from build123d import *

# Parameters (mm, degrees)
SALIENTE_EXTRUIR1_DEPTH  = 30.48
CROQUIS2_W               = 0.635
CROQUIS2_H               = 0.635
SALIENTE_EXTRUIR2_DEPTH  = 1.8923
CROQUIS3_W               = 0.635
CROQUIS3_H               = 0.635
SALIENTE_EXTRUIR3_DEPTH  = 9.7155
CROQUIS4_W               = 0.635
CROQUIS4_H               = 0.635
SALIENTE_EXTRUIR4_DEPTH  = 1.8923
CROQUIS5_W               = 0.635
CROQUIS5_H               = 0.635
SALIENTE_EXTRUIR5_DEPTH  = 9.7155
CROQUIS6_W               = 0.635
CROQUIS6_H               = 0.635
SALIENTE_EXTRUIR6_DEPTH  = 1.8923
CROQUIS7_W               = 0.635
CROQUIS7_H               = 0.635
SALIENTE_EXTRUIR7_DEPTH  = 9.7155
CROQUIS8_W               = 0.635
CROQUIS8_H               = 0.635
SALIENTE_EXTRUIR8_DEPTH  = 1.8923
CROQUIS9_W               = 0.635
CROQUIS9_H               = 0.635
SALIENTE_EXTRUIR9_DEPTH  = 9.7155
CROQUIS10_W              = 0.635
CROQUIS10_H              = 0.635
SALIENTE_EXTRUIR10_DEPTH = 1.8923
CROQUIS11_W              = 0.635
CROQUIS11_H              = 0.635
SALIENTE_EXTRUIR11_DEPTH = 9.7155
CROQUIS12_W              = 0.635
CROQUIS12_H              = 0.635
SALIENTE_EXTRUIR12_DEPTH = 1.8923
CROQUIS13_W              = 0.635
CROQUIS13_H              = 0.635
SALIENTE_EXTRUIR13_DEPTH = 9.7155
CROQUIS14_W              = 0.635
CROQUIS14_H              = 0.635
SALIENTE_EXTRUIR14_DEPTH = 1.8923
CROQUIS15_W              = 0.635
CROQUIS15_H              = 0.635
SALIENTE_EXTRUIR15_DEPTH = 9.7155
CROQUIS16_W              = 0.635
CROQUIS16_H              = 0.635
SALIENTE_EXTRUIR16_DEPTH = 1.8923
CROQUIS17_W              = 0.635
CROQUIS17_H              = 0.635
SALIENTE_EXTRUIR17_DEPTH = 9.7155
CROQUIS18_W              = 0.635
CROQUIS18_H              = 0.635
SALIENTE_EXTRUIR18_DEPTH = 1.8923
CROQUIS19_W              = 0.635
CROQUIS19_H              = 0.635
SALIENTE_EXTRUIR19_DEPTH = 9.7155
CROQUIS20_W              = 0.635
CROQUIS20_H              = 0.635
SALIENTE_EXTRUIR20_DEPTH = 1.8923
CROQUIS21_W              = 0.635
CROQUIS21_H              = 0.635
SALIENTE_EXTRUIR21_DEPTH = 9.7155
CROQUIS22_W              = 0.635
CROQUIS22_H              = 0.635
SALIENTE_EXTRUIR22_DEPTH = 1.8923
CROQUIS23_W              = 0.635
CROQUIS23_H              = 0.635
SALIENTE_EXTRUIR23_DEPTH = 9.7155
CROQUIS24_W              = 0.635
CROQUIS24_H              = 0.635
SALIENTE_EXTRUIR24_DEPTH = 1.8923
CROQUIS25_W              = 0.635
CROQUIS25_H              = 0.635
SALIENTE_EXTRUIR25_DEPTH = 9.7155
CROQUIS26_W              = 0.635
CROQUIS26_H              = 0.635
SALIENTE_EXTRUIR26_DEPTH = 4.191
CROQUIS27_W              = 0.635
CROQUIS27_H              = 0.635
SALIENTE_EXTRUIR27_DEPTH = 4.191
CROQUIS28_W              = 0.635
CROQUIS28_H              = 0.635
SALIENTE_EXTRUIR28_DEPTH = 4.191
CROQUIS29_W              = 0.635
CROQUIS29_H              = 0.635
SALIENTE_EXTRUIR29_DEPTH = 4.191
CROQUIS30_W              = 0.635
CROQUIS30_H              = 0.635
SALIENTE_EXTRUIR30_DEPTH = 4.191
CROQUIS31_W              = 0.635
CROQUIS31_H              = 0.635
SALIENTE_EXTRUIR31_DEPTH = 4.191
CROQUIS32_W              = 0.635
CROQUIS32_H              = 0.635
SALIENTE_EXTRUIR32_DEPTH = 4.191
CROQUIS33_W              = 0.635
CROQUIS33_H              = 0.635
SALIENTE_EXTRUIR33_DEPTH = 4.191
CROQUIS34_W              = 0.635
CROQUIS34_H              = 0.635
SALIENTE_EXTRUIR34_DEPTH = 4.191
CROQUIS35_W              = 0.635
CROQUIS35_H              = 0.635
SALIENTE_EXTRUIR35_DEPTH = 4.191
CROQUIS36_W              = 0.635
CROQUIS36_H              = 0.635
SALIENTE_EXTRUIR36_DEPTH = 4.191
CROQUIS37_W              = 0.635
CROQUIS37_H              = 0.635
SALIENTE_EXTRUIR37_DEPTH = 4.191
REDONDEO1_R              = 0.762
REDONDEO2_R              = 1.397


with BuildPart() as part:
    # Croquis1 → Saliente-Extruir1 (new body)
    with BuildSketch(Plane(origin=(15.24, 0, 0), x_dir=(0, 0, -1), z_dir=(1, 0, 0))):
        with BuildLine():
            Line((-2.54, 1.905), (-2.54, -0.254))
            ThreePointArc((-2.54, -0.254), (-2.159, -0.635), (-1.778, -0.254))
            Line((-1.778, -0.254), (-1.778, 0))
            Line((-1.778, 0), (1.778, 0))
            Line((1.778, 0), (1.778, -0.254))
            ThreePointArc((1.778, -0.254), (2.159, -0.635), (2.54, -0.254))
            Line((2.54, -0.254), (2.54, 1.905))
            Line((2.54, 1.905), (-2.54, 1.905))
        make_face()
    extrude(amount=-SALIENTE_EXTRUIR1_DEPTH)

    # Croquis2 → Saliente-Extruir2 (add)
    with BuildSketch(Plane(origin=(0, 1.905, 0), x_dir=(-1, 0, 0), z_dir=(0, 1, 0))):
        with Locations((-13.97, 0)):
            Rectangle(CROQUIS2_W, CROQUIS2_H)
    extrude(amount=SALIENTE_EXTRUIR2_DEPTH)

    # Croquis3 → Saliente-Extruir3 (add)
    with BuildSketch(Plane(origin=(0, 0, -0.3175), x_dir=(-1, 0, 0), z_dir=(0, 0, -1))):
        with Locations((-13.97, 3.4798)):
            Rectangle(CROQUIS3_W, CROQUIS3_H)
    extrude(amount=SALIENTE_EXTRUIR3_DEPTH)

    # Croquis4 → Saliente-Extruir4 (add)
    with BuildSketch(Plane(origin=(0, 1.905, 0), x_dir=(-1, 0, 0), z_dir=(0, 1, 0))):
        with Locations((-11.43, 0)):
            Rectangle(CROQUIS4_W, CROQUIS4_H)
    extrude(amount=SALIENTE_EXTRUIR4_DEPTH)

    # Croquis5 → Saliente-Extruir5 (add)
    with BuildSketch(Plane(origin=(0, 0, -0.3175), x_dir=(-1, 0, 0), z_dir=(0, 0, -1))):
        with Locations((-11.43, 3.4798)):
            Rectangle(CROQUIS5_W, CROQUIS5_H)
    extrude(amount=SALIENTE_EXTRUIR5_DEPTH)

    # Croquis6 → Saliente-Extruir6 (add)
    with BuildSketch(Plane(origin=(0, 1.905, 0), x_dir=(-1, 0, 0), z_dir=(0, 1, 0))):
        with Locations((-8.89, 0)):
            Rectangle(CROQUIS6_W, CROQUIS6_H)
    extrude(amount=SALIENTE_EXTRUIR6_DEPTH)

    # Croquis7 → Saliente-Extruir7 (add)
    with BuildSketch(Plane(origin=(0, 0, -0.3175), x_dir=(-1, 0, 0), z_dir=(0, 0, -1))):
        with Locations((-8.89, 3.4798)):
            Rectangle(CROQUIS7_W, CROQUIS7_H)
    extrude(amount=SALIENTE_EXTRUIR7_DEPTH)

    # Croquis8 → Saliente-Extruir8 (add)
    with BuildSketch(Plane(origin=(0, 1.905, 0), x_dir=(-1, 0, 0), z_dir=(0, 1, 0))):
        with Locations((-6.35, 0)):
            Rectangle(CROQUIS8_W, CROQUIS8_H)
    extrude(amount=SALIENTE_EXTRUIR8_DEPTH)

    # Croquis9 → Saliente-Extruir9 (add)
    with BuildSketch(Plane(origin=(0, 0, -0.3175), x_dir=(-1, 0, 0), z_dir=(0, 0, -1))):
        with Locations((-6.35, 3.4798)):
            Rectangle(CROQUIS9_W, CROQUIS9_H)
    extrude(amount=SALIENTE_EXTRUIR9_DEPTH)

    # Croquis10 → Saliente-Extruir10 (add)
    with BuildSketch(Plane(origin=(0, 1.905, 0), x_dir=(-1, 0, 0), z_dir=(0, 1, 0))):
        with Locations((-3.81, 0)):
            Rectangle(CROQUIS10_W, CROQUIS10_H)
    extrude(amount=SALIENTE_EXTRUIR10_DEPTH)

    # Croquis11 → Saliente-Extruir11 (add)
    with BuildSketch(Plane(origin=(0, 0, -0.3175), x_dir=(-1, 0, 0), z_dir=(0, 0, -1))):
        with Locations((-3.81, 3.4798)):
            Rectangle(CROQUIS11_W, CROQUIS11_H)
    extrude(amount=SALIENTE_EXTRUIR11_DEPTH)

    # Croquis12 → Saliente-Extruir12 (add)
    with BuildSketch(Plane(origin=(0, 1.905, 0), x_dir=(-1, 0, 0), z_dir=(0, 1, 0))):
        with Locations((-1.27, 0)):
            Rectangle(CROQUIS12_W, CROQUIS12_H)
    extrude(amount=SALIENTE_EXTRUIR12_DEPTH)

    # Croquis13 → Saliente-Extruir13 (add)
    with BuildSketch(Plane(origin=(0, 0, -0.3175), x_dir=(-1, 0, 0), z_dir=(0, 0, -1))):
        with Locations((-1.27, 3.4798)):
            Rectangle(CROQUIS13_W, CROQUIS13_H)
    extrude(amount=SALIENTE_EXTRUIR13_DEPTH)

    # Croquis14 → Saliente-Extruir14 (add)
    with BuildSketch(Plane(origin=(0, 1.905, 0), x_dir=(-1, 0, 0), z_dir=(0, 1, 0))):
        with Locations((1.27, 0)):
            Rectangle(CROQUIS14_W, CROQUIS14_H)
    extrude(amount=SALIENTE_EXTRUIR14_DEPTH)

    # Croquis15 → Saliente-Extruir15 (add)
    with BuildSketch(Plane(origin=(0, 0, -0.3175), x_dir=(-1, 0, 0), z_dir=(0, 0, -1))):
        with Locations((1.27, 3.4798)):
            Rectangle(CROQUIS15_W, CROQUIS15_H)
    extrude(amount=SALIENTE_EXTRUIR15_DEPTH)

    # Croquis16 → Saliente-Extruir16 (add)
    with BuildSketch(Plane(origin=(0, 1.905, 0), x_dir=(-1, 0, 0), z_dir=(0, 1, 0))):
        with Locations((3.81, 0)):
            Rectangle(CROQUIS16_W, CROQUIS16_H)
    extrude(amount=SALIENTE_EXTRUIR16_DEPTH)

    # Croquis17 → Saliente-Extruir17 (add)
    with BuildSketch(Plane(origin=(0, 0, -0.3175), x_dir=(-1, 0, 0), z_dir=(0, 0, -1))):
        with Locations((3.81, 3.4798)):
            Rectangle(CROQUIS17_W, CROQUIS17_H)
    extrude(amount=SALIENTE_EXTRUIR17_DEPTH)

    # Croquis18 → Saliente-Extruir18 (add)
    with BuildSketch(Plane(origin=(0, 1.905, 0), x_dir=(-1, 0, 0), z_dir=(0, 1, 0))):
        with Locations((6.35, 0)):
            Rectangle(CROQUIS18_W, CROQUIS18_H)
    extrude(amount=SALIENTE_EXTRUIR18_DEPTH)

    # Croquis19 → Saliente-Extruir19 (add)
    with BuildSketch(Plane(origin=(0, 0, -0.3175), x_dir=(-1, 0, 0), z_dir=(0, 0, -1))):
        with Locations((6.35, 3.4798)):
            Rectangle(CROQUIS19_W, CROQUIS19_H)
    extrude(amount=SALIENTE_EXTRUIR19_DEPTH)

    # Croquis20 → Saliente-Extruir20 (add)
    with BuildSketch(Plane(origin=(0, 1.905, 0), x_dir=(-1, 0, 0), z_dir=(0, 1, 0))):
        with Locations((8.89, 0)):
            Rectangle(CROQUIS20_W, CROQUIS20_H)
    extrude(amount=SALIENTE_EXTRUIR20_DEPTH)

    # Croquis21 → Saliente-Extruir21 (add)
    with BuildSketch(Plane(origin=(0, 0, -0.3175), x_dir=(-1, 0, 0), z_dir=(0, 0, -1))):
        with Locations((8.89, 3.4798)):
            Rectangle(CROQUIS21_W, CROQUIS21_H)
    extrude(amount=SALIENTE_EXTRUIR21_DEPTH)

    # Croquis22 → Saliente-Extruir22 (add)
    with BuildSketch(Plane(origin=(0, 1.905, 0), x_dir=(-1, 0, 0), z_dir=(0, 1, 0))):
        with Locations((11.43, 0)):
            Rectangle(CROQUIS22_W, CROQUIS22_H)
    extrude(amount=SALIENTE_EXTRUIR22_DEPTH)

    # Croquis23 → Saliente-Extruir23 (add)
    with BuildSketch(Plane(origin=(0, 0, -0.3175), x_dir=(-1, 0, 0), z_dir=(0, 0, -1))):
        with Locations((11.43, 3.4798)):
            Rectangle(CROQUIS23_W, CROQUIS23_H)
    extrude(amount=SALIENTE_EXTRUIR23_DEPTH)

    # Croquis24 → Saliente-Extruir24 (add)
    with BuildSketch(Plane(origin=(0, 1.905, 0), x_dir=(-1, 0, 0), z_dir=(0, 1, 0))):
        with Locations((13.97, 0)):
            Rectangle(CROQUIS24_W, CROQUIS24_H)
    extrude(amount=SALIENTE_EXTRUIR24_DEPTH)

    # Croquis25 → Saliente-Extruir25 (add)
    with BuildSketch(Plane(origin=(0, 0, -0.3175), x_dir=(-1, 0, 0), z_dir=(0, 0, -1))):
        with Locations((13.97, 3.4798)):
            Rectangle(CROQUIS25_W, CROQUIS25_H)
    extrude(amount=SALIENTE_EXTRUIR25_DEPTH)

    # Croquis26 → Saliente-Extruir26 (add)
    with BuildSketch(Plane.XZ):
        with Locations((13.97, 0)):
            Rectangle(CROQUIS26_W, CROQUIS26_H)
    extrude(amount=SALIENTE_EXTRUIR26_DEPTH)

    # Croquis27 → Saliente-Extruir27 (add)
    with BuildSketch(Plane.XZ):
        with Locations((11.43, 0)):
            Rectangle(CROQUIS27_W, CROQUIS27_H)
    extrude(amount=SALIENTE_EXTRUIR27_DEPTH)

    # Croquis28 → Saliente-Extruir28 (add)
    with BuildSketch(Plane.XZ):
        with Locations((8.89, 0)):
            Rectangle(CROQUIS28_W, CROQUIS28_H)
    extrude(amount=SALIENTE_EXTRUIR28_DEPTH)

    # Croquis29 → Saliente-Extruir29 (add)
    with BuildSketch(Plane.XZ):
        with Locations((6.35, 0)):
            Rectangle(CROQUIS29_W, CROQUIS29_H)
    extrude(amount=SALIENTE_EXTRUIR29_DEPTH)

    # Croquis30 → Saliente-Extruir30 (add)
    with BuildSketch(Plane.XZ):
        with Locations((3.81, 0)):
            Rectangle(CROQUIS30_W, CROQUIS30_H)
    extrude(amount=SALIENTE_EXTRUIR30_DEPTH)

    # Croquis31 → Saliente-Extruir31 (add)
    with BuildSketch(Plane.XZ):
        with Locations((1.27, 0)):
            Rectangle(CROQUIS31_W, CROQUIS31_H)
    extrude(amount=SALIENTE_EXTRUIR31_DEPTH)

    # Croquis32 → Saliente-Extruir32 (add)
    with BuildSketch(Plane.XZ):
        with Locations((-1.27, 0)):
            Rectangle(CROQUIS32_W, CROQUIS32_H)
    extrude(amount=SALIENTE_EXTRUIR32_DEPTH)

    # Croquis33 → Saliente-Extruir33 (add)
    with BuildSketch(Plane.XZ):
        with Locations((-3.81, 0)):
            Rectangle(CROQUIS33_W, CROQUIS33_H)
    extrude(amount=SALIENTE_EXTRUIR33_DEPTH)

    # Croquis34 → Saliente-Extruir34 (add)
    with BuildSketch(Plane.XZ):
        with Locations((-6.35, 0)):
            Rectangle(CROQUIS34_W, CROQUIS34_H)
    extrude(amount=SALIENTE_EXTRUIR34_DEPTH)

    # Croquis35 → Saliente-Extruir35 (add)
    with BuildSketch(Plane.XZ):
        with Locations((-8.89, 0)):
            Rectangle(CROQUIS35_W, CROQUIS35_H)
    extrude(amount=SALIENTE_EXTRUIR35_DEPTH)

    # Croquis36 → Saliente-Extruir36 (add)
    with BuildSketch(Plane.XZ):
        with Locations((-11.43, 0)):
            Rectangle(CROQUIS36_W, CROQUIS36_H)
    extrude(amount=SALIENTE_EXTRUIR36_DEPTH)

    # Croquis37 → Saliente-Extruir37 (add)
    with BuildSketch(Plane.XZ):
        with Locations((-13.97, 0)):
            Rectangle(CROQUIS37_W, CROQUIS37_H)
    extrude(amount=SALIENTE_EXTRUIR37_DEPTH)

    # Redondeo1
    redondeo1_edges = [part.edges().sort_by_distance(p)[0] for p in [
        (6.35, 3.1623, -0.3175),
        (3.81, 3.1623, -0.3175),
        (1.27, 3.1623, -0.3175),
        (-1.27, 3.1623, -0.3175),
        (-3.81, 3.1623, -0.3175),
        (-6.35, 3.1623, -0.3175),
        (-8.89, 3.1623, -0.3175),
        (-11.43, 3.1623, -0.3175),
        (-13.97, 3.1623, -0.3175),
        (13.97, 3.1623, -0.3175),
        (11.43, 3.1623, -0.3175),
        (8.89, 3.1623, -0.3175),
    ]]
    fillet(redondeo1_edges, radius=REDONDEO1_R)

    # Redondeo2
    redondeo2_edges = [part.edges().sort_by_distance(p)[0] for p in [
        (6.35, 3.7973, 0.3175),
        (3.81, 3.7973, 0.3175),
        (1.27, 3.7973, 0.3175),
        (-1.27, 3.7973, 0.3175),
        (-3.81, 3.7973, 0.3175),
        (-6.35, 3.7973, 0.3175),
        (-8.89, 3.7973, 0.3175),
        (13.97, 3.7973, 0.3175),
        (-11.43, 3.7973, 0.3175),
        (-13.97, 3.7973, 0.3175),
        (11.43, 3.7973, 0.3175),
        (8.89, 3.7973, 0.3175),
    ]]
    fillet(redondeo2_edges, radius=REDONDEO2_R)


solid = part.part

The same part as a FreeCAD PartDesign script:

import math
import FreeCAD as App
import Part
import Sketcher
Q = App.Units.Quantity


def edges_at(feature, points):
    """Names of the edges that pass closest to the given points."""
    edges = feature.Shape.Edges
    near = lambda p: min(range(len(edges)), key=lambda i: edges[i].distToShape(Part.Vertex(*p))[0])
    return sorted({f"Edge{near(p) + 1}" for p in points})


def add_polygon(sketch, points):
    """Adds a closed chain of lines whose ends are joined by coincident constraints."""
    first, n = sketch.GeometryCount, len(points)
    for a, b in zip(points, points[1:] + points[:1]):
        sketch.addGeometry(Part.LineSegment(App.Vector(*a, 0), App.Vector(*b, 0)), False)
    for i in range(n):
        sketch.addConstraint(Sketcher.Constraint("Coincident", first + i, 2, first + (i + 1) % n, 1))

doc = App.newDocument("Part")
body = doc.addObject("PartDesign::Body", "Body")

sketch1 = body.newObject("Sketcher::SketchObject", "Sketch")
sketch1.AttachmentSupport = (doc.getObject("YZ_Plane"), [""])
sketch1.MapMode = "FlatFace"
sketch1.AttachmentOffset = App.Placement(App.Vector(0, 0, 0.6 * 25.4), App.Rotation())
sketch1.addGeometry(Part.LineSegment(App.Vector(1.91, 2.54, 0), App.Vector(-0.25, 2.54, 0)), False)
sketch1.addGeometry(Part.ArcOfCircle(Part.Circle(App.Vector(-0.25, 2.16, 0), App.Vector(0, 0, 1), 0.38), math.radians(90), math.radians(270)), False)
sketch1.addGeometry(Part.LineSegment(App.Vector(-0.25, 1.78, 0), App.Vector(0, 1.78, 0)), False)
sketch1.addGeometry(Part.LineSegment(App.Vector(0, 1.78, 0), App.Vector(0, -1.78, 0)), False)
sketch1.addGeometry(Part.LineSegment(App.Vector(0, -1.78, 0), App.Vector(-0.25, -1.78, 0)), False)
sketch1.addGeometry(Part.ArcOfCircle(Part.Circle(App.Vector(-0.25, -2.16, 0), App.Vector(0, 0, 1), 0.38), math.radians(90), math.radians(270)), False)
sketch1.addGeometry(Part.LineSegment(App.Vector(-0.25, -2.54, 0), App.Vector(1.91, -2.54, 0)), False)
sketch1.addGeometry(Part.LineSegment(App.Vector(1.91, -2.54, 0), App.Vector(1.91, 2.54, 0)), False)
sketch1.addConstraint(Sketcher.Constraint("Tangent", 0, 2, 1, 1))
sketch1.addConstraint(Sketcher.Constraint("Tangent", 1, 2, 2, 1))
sketch1.addConstraint(Sketcher.Constraint("Coincident", 2, 2, 3, 1))
sketch1.addConstraint(Sketcher.Constraint("Coincident", 3, 2, 4, 1))
sketch1.addConstraint(Sketcher.Constraint("Tangent", 4, 2, 5, 1))
sketch1.addConstraint(Sketcher.Constraint("Tangent", 5, 2, 6, 1))
sketch1.addConstraint(Sketcher.Constraint("Coincident", 6, 2, 7, 1))
sketch1.addConstraint(Sketcher.Constraint("Coincident", 7, 2, 0, 1))
sketch1.addConstraint(Sketcher.Constraint("Horizontal", 0))
sketch1.addConstraint(Sketcher.Constraint("Horizontal", 2))
sketch1.addConstraint(Sketcher.Constraint("Vertical", 3))
sketch1.addConstraint(Sketcher.Constraint("Horizontal", 4))
sketch1.addConstraint(Sketcher.Constraint("Horizontal", 6))
sketch1.addConstraint(Sketcher.Constraint("Vertical", 7))
sketch1.addConstraint(Sketcher.Constraint("Equal", 1, 5))
sketch1.addConstraint(Sketcher.Constraint("Symmetric", 2, 2, 3, 2, -1, 1))
sketch1.addConstraint(Sketcher.Constraint("Vertical", 1, 3, 5, 3))
sketch1.addConstraint(Sketcher.Constraint("DistanceY", 7, 1, 7, 2, Q("0.2 in")))
sketch1.addConstraint(Sketcher.Constraint("Radius", 1, Q("0.015 in")))
sketch1.addConstraint(Sketcher.Constraint("DistanceX", 2, 1, 2, 2, Q("0.01 in")))
sketch1.addConstraint(Sketcher.Constraint("DistanceX", 0, 2, 0, 1, Q("0.085 in")))
pad1 = body.newObject("PartDesign::Pad", "Pad")
pad1.Profile = sketch1
pad1.Length = Q("1.2 in")
pad1.Reversed = True

sketch2 = body.newObject("Sketcher::SketchObject", "Sketch001")
sketch2.AttachmentSupport = (doc.getObject("XZ_Plane"), [""])
sketch2.MapMode = "FlatFace"
sketch2.AttachmentOffset = App.Placement(App.Vector(0, 0, -0.075 * 25.4), App.Rotation())
add_polygon(sketch2, [(14.3, 0.3), (14.3, -0.3), (13.7, -0.3), (13.7, 0.3)])
sketch2.addConstraint(Sketcher.Constraint("Vertical", 0))
sketch2.addConstraint(Sketcher.Constraint("Horizontal", 1))
sketch2.addConstraint(Sketcher.Constraint("Vertical", 2))
sketch2.addConstraint(Sketcher.Constraint("Horizontal", 3))
sketch2.addConstraint(Sketcher.Constraint("Equal", 3, 0))
sketch2.addConstraint(Sketcher.Constraint("DistanceX", 1, 2, 1, 1, Q("0.025 in")))
sketch2.addConstraint(Sketcher.Constraint("DistanceX", -1, 1, 0, 2, Q("0.5625 in")))
sketch2.addConstraint(Sketcher.Constraint("DistanceY", 0, 2, -1, 1, Q("0.0125 in")))
pad2 = body.newObject("PartDesign::Pad", "Pad001")
pad2.Profile = sketch2
pad2.Length = Q("0.0745 in")
pad2.Reversed = True

sketch3 = body.newObject("Sketcher::SketchObject", "Sketch002")
sketch3.AttachmentSupport = (doc.getObject("XY_Plane"), [""])
sketch3.MapMode = "FlatFace"
sketch3.AttachmentOffset = App.Placement(App.Vector(0, 0, -0.0125 * 25.4), App.Rotation())
add_polygon(sketch3, [(14.3, 3.8), (14.3, 3.2), (13.7, 3.2), (13.7, 3.8)])
sketch3.addConstraint(Sketcher.Constraint("Vertical", 0))
sketch3.addConstraint(Sketcher.Constraint("Horizontal", 1))
sketch3.addConstraint(Sketcher.Constraint("Vertical", 2))
sketch3.addConstraint(Sketcher.Constraint("Horizontal", 3))
sketch3.addConstraint(Sketcher.Constraint("Equal", 3, 0))
sketch3.addConstraint(Sketcher.Constraint("DistanceX", 1, 2, 1, 1, Q("0.025 in")))
sketch3.addConstraint(Sketcher.Constraint("DistanceX", -1, 1, 0, 2, Q("0.5625 in")))
sketch3.addConstraint(Sketcher.Constraint("DistanceY", -1, 1, 0, 2, Q("0.1245 in")))
pad3 = body.newObject("PartDesign::Pad", "Pad002")
pad3.Profile = sketch3
pad3.Length = Q("0.3825 in")
pad3.Reversed = True

sketch4 = body.newObject("Sketcher::SketchObject", "Sketch003")
sketch4.AttachmentSupport = (doc.getObject("XZ_Plane"), [""])
sketch4.MapMode = "FlatFace"
sketch4.AttachmentOffset = App.Placement(App.Vector(0, 0, -0.075 * 25.4), App.Rotation())
add_polygon(sketch4, [(11.7, 0.3), (11.7, -0.3), (11.1, -0.3), (11.1, 0.3)])
sketch4.addConstraint(Sketcher.Constraint("Vertical", 0))
sketch4.addConstraint(Sketcher.Constraint("Horizontal", 1))
sketch4.addConstraint(Sketcher.Constraint("Vertical", 2))
sketch4.addConstraint(Sketcher.Constraint("Horizontal", 3))
sketch4.addConstraint(Sketcher.Constraint("Equal", 3, 0))
sketch4.addConstraint(Sketcher.Constraint("DistanceX", 1, 2, 1, 1, Q("0.025 in")))
sketch4.addConstraint(Sketcher.Constraint("DistanceX", -1, 1, 1, 2, Q("0.4375 in")))
sketch4.addConstraint(Sketcher.Constraint("DistanceY", 0, 2, -1, 1, Q("0.0125 in")))
pad4 = body.newObject("PartDesign::Pad", "Pad003")
pad4.Profile = sketch4
pad4.Length = Q("0.0745 in")
pad4.Reversed = True

sketch5 = body.newObject("Sketcher::SketchObject", "Sketch004")
sketch5.AttachmentSupport = (doc.getObject("XY_Plane"), [""])
sketch5.MapMode = "FlatFace"
sketch5.AttachmentOffset = App.Placement(App.Vector(0, 0, -0.0125 * 25.4), App.Rotation())
add_polygon(sketch5, [(11.7, 3.8), (11.7, 3.2), (11.1, 3.2), (11.1, 3.8)])
sketch5.addConstraint(Sketcher.Constraint("Vertical", 0))
sketch5.addConstraint(Sketcher.Constraint("Horizontal", 1))
sketch5.addConstraint(Sketcher.Constraint("Vertical", 2))
sketch5.addConstraint(Sketcher.Constraint("Horizontal", 3))
sketch5.addConstraint(Sketcher.Constraint("Equal", 3, 0))
sketch5.addConstraint(Sketcher.Constraint("DistanceX", 1, 2, 1, 1, Q("0.025 in")))
sketch5.addConstraint(Sketcher.Constraint("DistanceX", -1, 1, 1, 2, Q("0.4375 in")))
sketch5.addConstraint(Sketcher.Constraint("DistanceY", -1, 1, 0, 2, Q("0.1245 in")))
pad5 = body.newObject("PartDesign::Pad", "Pad004")
pad5.Profile = sketch5
pad5.Length = Q("0.3825 in")
pad5.Reversed = True

sketch6 = body.newObject("Sketcher::SketchObject", "Sketch005")
sketch6.AttachmentSupport = (doc.getObject("XZ_Plane"), [""])
sketch6.MapMode = "FlatFace"
sketch6.AttachmentOffset = App.Placement(App.Vector(0, 0, -0.075 * 25.4), App.Rotation())
add_polygon(sketch6, [(9.2, 0.3), (9.2, -0.3), (8.6, -0.3), (8.6, 0.3)])
sketch6.addConstraint(Sketcher.Constraint("Vertical", 0))
sketch6.addConstraint(Sketcher.Constraint("Horizontal", 1))
sketch6.addConstraint(Sketcher.Constraint("Vertical", 2))
sketch6.addConstraint(Sketcher.Constraint("Horizontal", 3))
sketch6.addConstraint(Sketcher.Constraint("Equal", 3, 0))
sketch6.addConstraint(Sketcher.Constraint("DistanceX", 1, 2, 1, 1, Q("0.025 in")))
sketch6.addConstraint(Sketcher.Constraint("DistanceX", -1, 1, 0, 2, Q("0.3625 in")))
sketch6.addConstraint(Sketcher.Constraint("DistanceY", 0, 2, -1, 1, Q("0.0125 in")))
pad6 = body.newObject("PartDesign::Pad", "Pad005")
pad6.Profile = sketch6
pad6.Length = Q("0.0745 in")
pad6.Reversed = True

sketch7 = body.newObject("Sketcher::SketchObject", "Sketch006")
sketch7.AttachmentSupport = (doc.getObject("XY_Plane"), [""])
sketch7.MapMode = "FlatFace"
sketch7.AttachmentOffset = App.Placement(App.Vector(0, 0, -0.0125 * 25.4), App.Rotation())
add_polygon(sketch7, [(9.2, 3.8), (9.2, 3.2), (8.6, 3.2), (8.6, 3.8)])
sketch7.addConstraint(Sketcher.Constraint("Vertical", 0))
sketch7.addConstraint(Sketcher.Constraint("Horizontal", 1))
sketch7.addConstraint(Sketcher.Constraint("Vertical", 2))
sketch7.addConstraint(Sketcher.Constraint("Horizontal", 3))
sketch7.addConstraint(Sketcher.Constraint("Equal", 3, 0))
sketch7.addConstraint(Sketcher.Constraint("DistanceX", 1, 2, 1, 1, Q("0.025 in")))
sketch7.addConstraint(Sketcher.Constraint("DistanceX", -1, 1, 0, 2, Q("0.3625 in")))
sketch7.addConstraint(Sketcher.Constraint("DistanceY", -1, 1, 0, 2, Q("0.1245 in")))
pad7 = body.newObject("PartDesign::Pad", "Pad006")
pad7.Profile = sketch7
pad7.Length = Q("0.3825 in")
pad7.Reversed = True

sketch8 = body.newObject("Sketcher::SketchObject", "Sketch007")
sketch8.AttachmentSupport = (doc.getObject("XZ_Plane"), [""])
sketch8.MapMode = "FlatFace"
sketch8.AttachmentOffset = App.Placement(App.Vector(0, 0, -0.075 * 25.4), App.Rotation())
add_polygon(sketch8, [(6.7, 0.3), (6.7, -0.3), (6, -0.3), (6, 0.3)])
sketch8.addConstraint(Sketcher.Constraint("Vertical", 0))
sketch8.addConstraint(Sketcher.Constraint("Horizontal", 1))
sketch8.addConstraint(Sketcher.Constraint("Vertical", 2))
sketch8.addConstraint(Sketcher.Constraint("Horizontal", 3))
sketch8.addConstraint(Sketcher.Constraint("Equal", 3, 0))
sketch8.addConstraint(Sketcher.Constraint("DistanceX", 1, 2, 1, 1, Q("0.025 in")))
sketch8.addConstraint(Sketcher.Constraint("DistanceX", -1, 1, 0, 2, Q("0.2625 in")))
sketch8.addConstraint(Sketcher.Constraint("DistanceY", 0, 2, -1, 1, Q("0.0125 in")))
pad8 = body.newObject("PartDesign::Pad", "Pad007")
pad8.Profile = sketch8
pad8.Length = Q("0.0745 in")
pad8.Reversed = True

sketch9 = body.newObject("Sketcher::SketchObject", "Sketch008")
sketch9.AttachmentSupport = (doc.getObject("XY_Plane"), [""])
sketch9.MapMode = "FlatFace"
sketch9.AttachmentOffset = App.Placement(App.Vector(0, 0, -0.0125 * 25.4), App.Rotation())
add_polygon(sketch9, [(6.7, 3.8), (6.7, 3.2), (6, 3.2), (6, 3.8)])
sketch9.addConstraint(Sketcher.Constraint("Vertical", 0))
sketch9.addConstraint(Sketcher.Constraint("Horizontal", 1))
sketch9.addConstraint(Sketcher.Constraint("Vertical", 2))
sketch9.addConstraint(Sketcher.Constraint("Horizontal", 3))
sketch9.addConstraint(Sketcher.Constraint("Equal", 3, 0))
sketch9.addConstraint(Sketcher.Constraint("DistanceX", 1, 2, 1, 1, Q("0.025 in")))
sketch9.addConstraint(Sketcher.Constraint("DistanceX", -1, 1, 0, 2, Q("0.2625 in")))
sketch9.addConstraint(Sketcher.Constraint("DistanceY", -1, 1, 0, 2, Q("0.1245 in")))
pad9 = body.newObject("PartDesign::Pad", "Pad008")
pad9.Profile = sketch9
pad9.Length = Q("0.3825 in")
pad9.Reversed = True

sketch10 = body.newObject("Sketcher::SketchObject", "Sketch009")
sketch10.AttachmentSupport = (doc.getObject("XZ_Plane"), [""])
sketch10.MapMode = "FlatFace"
sketch10.AttachmentOffset = App.Placement(App.Vector(0, 0, -0.075 * 25.4), App.Rotation())
add_polygon(sketch10, [(4.1, 0.3), (4.1, -0.3), (3.5, -0.3), (3.5, 0.3)])
sketch10.addConstraint(Sketcher.Constraint("Vertical", 0))
sketch10.addConstraint(Sketcher.Constraint("Horizontal", 1))
sketch10.addConstraint(Sketcher.Constraint("Vertical", 2))
sketch10.addConstraint(Sketcher.Constraint("Horizontal", 3))
sketch10.addConstraint(Sketcher.Constraint("Equal", 3, 0))
sketch10.addConstraint(Sketcher.Constraint("DistanceX", 1, 2, 1, 1, Q("0.025 in")))
sketch10.addConstraint(Sketcher.Constraint("DistanceX", -1, 1, 0, 2, Q("0.1625 in")))
sketch10.addConstraint(Sketcher.Constraint("DistanceY", 0, 2, -1, 1, Q("0.0125 in")))
pad10 = body.newObject("PartDesign::Pad", "Pad009")
pad10.Profile = sketch10
pad10.Length = Q("0.0745 in")
pad10.Reversed = True

sketch11 = body.newObject("Sketcher::SketchObject", "Sketch010")
sketch11.AttachmentSupport = (doc.getObject("XY_Plane"), [""])
sketch11.MapMode = "FlatFace"
sketch11.AttachmentOffset = App.Placement(App.Vector(0, 0, -0.0125 * 25.4), App.Rotation())
add_polygon(sketch11, [(4.1, 3.8), (4.1, 3.2), (3.5, 3.2), (3.5, 3.8)])
sketch11.addConstraint(Sketcher.Constraint("Vertical", 0))
sketch11.addConstraint(Sketcher.Constraint("Horizontal", 1))
sketch11.addConstraint(Sketcher.Constraint("Vertical", 2))
sketch11.addConstraint(Sketcher.Constraint("Horizontal", 3))
sketch11.addConstraint(Sketcher.Constraint("Equal", 3, 0))
sketch11.addConstraint(Sketcher.Constraint("DistanceX", 1, 2, 1, 1, Q("0.025 in")))
sketch11.addConstraint(Sketcher.Constraint("DistanceX", -1, 1, 0, 2, Q("0.1625 in")))
sketch11.addConstraint(Sketcher.Constraint("DistanceY", -1, 1, 0, 2, Q("0.1245 in")))
pad11 = body.newObject("PartDesign::Pad", "Pad010")
pad11.Profile = sketch11
pad11.Length = Q("0.3825 in")
pad11.Reversed = True

sketch12 = body.newObject("Sketcher::SketchObject", "Sketch011")
sketch12.AttachmentSupport = (doc.getObject("XZ_Plane"), [""])
sketch12.MapMode = "FlatFace"
sketch12.AttachmentOffset = App.Placement(App.Vector(0, 0, -0.075 * 25.4), App.Rotation())
add_polygon(sketch12, [(1.6, 0.3), (1.6, -0.3), (1, -0.3), (1, 0.3)])
sketch12.addConstraint(Sketcher.Constraint("Vertical", 0))
sketch12.addConstraint(Sketcher.Constraint("Horizontal", 1))
sketch12.addConstraint(Sketcher.Constraint("Vertical", 2))
sketch12.addConstraint(Sketcher.Constraint("Horizontal", 3))
sketch12.addConstraint(Sketcher.Constraint("Equal", 3, 0))
sketch12.addConstraint(Sketcher.Constraint("DistanceX", 1, 2, 1, 1, Q("0.025 in")))
sketch12.addConstraint(Sketcher.Constraint("DistanceX", -1, 1, 0, 2, Q("0.0625 in")))
sketch12.addConstraint(Sketcher.Constraint("DistanceY", 0, 2, -1, 1, Q("0.0125 in")))
pad12 = body.newObject("PartDesign::Pad", "Pad011")
pad12.Profile = sketch12
pad12.Length = Q("0.0745 in")
pad12.Reversed = True

sketch13 = body.newObject("Sketcher::SketchObject", "Sketch012")
sketch13.AttachmentSupport = (doc.getObject("XY_Plane"), [""])
sketch13.MapMode = "FlatFace"
sketch13.AttachmentOffset = App.Placement(App.Vector(0, 0, -0.0125 * 25.4), App.Rotation())
add_polygon(sketch13, [(1.6, 3.8), (1.6, 3.2), (1, 3.2), (1, 3.8)])
sketch13.addConstraint(Sketcher.Constraint("Vertical", 0))
sketch13.addConstraint(Sketcher.Constraint("Horizontal", 1))
sketch13.addConstraint(Sketcher.Constraint("Vertical", 2))
sketch13.addConstraint(Sketcher.Constraint("Horizontal", 3))
sketch13.addConstraint(Sketcher.Constraint("Equal", 3, 0))
sketch13.addConstraint(Sketcher.Constraint("DistanceX", 1, 2, 1, 1, Q("0.025 in")))
sketch13.addConstraint(Sketcher.Constraint("DistanceX", -1, 1, 0, 2, Q("0.0625 in")))
sketch13.addConstraint(Sketcher.Constraint("DistanceY", -1, 1, 0, 2, Q("0.1245 in")))
pad13 = body.newObject("PartDesign::Pad", "Pad012")
pad13.Profile = sketch13
pad13.Length = Q("0.3825 in")
pad13.Reversed = True

sketch14 = body.newObject("Sketcher::SketchObject", "Sketch013")
sketch14.AttachmentSupport = (doc.getObject("XZ_Plane"), [""])
sketch14.MapMode = "FlatFace"
sketch14.AttachmentOffset = App.Placement(App.Vector(0, 0, -0.075 * 25.4), App.Rotation())
add_polygon(sketch14, [(-1, 0.3), (-1, -0.3), (-1.6, -0.3), (-1.6, 0.3)])
sketch14.addConstraint(Sketcher.Constraint("Vertical", 0))
sketch14.addConstraint(Sketcher.Constraint("Horizontal", 1))
sketch14.addConstraint(Sketcher.Constraint("Vertical", 2))
sketch14.addConstraint(Sketcher.Constraint("Horizontal", 3))
sketch14.addConstraint(Sketcher.Constraint("Equal", 3, 0))
sketch14.addConstraint(Sketcher.Constraint("DistanceX", 1, 2, 1, 1, Q("0.025 in")))
sketch14.addConstraint(Sketcher.Constraint("DistanceX", 1, 2, -1, 1, Q("0.0625 in")))
sketch14.addConstraint(Sketcher.Constraint("DistanceY", 0, 2, -1, 1, Q("0.0125 in")))
pad14 = body.newObject("PartDesign::Pad", "Pad013")
pad14.Profile = sketch14
pad14.Length = Q("0.0745 in")
pad14.Reversed = True

sketch15 = body.newObject("Sketcher::SketchObject", "Sketch014")
sketch15.AttachmentSupport = (doc.getObject("XY_Plane"), [""])
sketch15.MapMode = "FlatFace"
sketch15.AttachmentOffset = App.Placement(App.Vector(0, 0, -0.0125 * 25.4), App.Rotation())
add_polygon(sketch15, [(-1, 3.8), (-1, 3.2), (-1.6, 3.2), (-1.6, 3.8)])
sketch15.addConstraint(Sketcher.Constraint("Vertical", 0))
sketch15.addConstraint(Sketcher.Constraint("Horizontal", 1))
sketch15.addConstraint(Sketcher.Constraint("Vertical", 2))
sketch15.addConstraint(Sketcher.Constraint("Horizontal", 3))
sketch15.addConstraint(Sketcher.Constraint("Equal", 3, 0))
sketch15.addConstraint(Sketcher.Constraint("DistanceX", 1, 2, 1, 1, Q("0.025 in")))
sketch15.addConstraint(Sketcher.Constraint("DistanceX", 1, 2, -1, 1, Q("0.0625 in")))
sketch15.addConstraint(Sketcher.Constraint("DistanceY", -1, 1, 0, 2, Q("0.1245 in")))
pad15 = body.newObject("PartDesign::Pad", "Pad014")
pad15.Profile = sketch15
pad15.Length = Q("0.3825 in")
pad15.Reversed = True

sketch16 = body.newObject("Sketcher::SketchObject", "Sketch015")
sketch16.AttachmentSupport = (doc.getObject("XZ_Plane"), [""])
sketch16.MapMode = "FlatFace"
sketch16.AttachmentOffset = App.Placement(App.Vector(0, 0, -0.075 * 25.4), App.Rotation())
add_polygon(sketch16, [(-3.5, 0.3), (-3.5, -0.3), (-4.1, -0.3), (-4.1, 0.3)])
sketch16.addConstraint(Sketcher.Constraint("Vertical", 0))
sketch16.addConstraint(Sketcher.Constraint("Horizontal", 1))
sketch16.addConstraint(Sketcher.Constraint("Vertical", 2))
sketch16.addConstraint(Sketcher.Constraint("Horizontal", 3))
sketch16.addConstraint(Sketcher.Constraint("Equal", 3, 0))
sketch16.addConstraint(Sketcher.Constraint("DistanceX", 1, 2, 1, 1, Q("0.025 in")))
sketch16.addConstraint(Sketcher.Constraint("DistanceX", 0, 2, -1, 1, Q("0.1375 in")))
sketch16.addConstraint(Sketcher.Constraint("DistanceY", 0, 2, -1, 1, Q("0.0125 in")))
pad16 = body.newObject("PartDesign::Pad", "Pad015")
pad16.Profile = sketch16
pad16.Length = Q("0.0745 in")
pad16.Reversed = True

sketch17 = body.newObject("Sketcher::SketchObject", "Sketch016")
sketch17.AttachmentSupport = (doc.getObject("XY_Plane"), [""])
sketch17.MapMode = "FlatFace"
sketch17.AttachmentOffset = App.Placement(App.Vector(0, 0, -0.0125 * 25.4), App.Rotation())
add_polygon(sketch17, [(-3.5, 3.8), (-3.5, 3.2), (-4.1, 3.2), (-4.1, 3.8)])
sketch17.addConstraint(Sketcher.Constraint("Vertical", 0))
sketch17.addConstraint(Sketcher.Constraint("Horizontal", 1))
sketch17.addConstraint(Sketcher.Constraint("Vertical", 2))
sketch17.addConstraint(Sketcher.Constraint("Horizontal", 3))
sketch17.addConstraint(Sketcher.Constraint("Equal", 3, 0))
sketch17.addConstraint(Sketcher.Constraint("DistanceX", 1, 2, 1, 1, Q("0.025 in")))
sketch17.addConstraint(Sketcher.Constraint("DistanceX", 0, 2, -1, 1, Q("0.1375 in")))
sketch17.addConstraint(Sketcher.Constraint("DistanceY", -1, 1, 0, 2, Q("0.1245 in")))
pad17 = body.newObject("PartDesign::Pad", "Pad016")
pad17.Profile = sketch17
pad17.Length = Q("0.3825 in")
pad17.Reversed = True

sketch18 = body.newObject("Sketcher::SketchObject", "Sketch017")
sketch18.AttachmentSupport = (doc.getObject("XZ_Plane"), [""])
sketch18.MapMode = "FlatFace"
sketch18.AttachmentOffset = App.Placement(App.Vector(0, 0, -0.075 * 25.4), App.Rotation())
add_polygon(sketch18, [(-6, 0.3), (-6, -0.3), (-6.7, -0.3), (-6.7, 0.3)])
sketch18.addConstraint(Sketcher.Constraint("Vertical", 0))
sketch18.addConstraint(Sketcher.Constraint("Horizontal", 1))
sketch18.addConstraint(Sketcher.Constraint("Vertical", 2))
sketch18.addConstraint(Sketcher.Constraint("Horizontal", 3))
sketch18.addConstraint(Sketcher.Constraint("Equal", 3, 0))
sketch18.addConstraint(Sketcher.Constraint("DistanceX", 1, 2, 1, 1, Q("0.025 in")))
sketch18.addConstraint(Sketcher.Constraint("DistanceX", 0, 2, -1, 1, Q("0.2375 in")))
sketch18.addConstraint(Sketcher.Constraint("DistanceY", 0, 2, -1, 1, Q("0.0125 in")))
pad18 = body.newObject("PartDesign::Pad", "Pad017")
pad18.Profile = sketch18
pad18.Length = Q("0.0745 in")
pad18.Reversed = True

sketch19 = body.newObject("Sketcher::SketchObject", "Sketch018")
sketch19.AttachmentSupport = (doc.getObject("XY_Plane"), [""])
sketch19.MapMode = "FlatFace"
sketch19.AttachmentOffset = App.Placement(App.Vector(0, 0, -0.0125 * 25.4), App.Rotation())
add_polygon(sketch19, [(-6, 3.8), (-6, 3.2), (-6.7, 3.2), (-6.7, 3.8)])
sketch19.addConstraint(Sketcher.Constraint("Vertical", 0))
sketch19.addConstraint(Sketcher.Constraint("Horizontal", 1))
sketch19.addConstraint(Sketcher.Constraint("Vertical", 2))
sketch19.addConstraint(Sketcher.Constraint("Horizontal", 3))
sketch19.addConstraint(Sketcher.Constraint("Equal", 3, 0))
sketch19.addConstraint(Sketcher.Constraint("DistanceX", 1, 2, 1, 1, Q("0.025 in")))
sketch19.addConstraint(Sketcher.Constraint("DistanceX", 0, 2, -1, 1, Q("0.2375 in")))
sketch19.addConstraint(Sketcher.Constraint("DistanceY", -1, 1, 0, 2, Q("0.1245 in")))
pad19 = body.newObject("PartDesign::Pad", "Pad018")
pad19.Profile = sketch19
pad19.Length = Q("0.3825 in")
pad19.Reversed = True

sketch20 = body.newObject("Sketcher::SketchObject", "Sketch019")
sketch20.AttachmentSupport = (doc.getObject("XZ_Plane"), [""])
sketch20.MapMode = "FlatFace"
sketch20.AttachmentOffset = App.Placement(App.Vector(0, 0, -0.075 * 25.4), App.Rotation())
add_polygon(sketch20, [(-8.6, 0.3), (-8.6, -0.3), (-9.2, -0.3), (-9.2, 0.3)])
sketch20.addConstraint(Sketcher.Constraint("Vertical", 0))
sketch20.addConstraint(Sketcher.Constraint("Horizontal", 1))
sketch20.addConstraint(Sketcher.Constraint("Vertical", 2))
sketch20.addConstraint(Sketcher.Constraint("Horizontal", 3))
sketch20.addConstraint(Sketcher.Constraint("Equal", 3, 0))
sketch20.addConstraint(Sketcher.Constraint("DistanceX", 1, 2, 1, 1, Q("0.025 in")))
sketch20.addConstraint(Sketcher.Constraint("DistanceX", 0, 2, -1, 1, Q("0.3375 in")))
sketch20.addConstraint(Sketcher.Constraint("DistanceY", 0, 2, -1, 1, Q("0.0125 in")))
pad20 = body.newObject("PartDesign::Pad", "Pad019")
pad20.Profile = sketch20
pad20.Length = Q("0.0745 in")
pad20.Reversed = True

sketch21 = body.newObject("Sketcher::SketchObject", "Sketch020")
sketch21.AttachmentSupport = (doc.getObject("XY_Plane"), [""])
sketch21.MapMode = "FlatFace"
sketch21.AttachmentOffset = App.Placement(App.Vector(0, 0, -0.0125 * 25.4), App.Rotation())
add_polygon(sketch21, [(-8.6, 3.8), (-8.6, 3.2), (-9.2, 3.2), (-9.2, 3.8)])
sketch21.addConstraint(Sketcher.Constraint("Vertical", 0))
sketch21.addConstraint(Sketcher.Constraint("Horizontal", 1))
sketch21.addConstraint(Sketcher.Constraint("Vertical", 2))
sketch21.addConstraint(Sketcher.Constraint("Horizontal", 3))
sketch21.addConstraint(Sketcher.Constraint("Equal", 3, 0))
sketch21.addConstraint(Sketcher.Constraint("DistanceX", 1, 2, 1, 1, Q("0.025 in")))
sketch21.addConstraint(Sketcher.Constraint("DistanceX", 0, 2, -1, 1, Q("0.3375 in")))
sketch21.addConstraint(Sketcher.Constraint("DistanceY", -1, 1, 0, 2, Q("0.1245 in")))
pad21 = body.newObject("PartDesign::Pad", "Pad020")
pad21.Profile = sketch21
pad21.Length = Q("0.3825 in")
pad21.Reversed = True

sketch22 = body.newObject("Sketcher::SketchObject", "Sketch021")
sketch22.AttachmentSupport = (doc.getObject("XZ_Plane"), [""])
sketch22.MapMode = "FlatFace"
sketch22.AttachmentOffset = App.Placement(App.Vector(0, 0, -0.075 * 25.4), App.Rotation())
add_polygon(sketch22, [(-11.1, 0.3), (-11.1, -0.3), (-11.7, -0.3), (-11.7, 0.3)])
sketch22.addConstraint(Sketcher.Constraint("Vertical", 0))
sketch22.addConstraint(Sketcher.Constraint("Horizontal", 1))
sketch22.addConstraint(Sketcher.Constraint("Vertical", 2))
sketch22.addConstraint(Sketcher.Constraint("Horizontal", 3))
sketch22.addConstraint(Sketcher.Constraint("Equal", 3, 0))
sketch22.addConstraint(Sketcher.Constraint("DistanceX", 1, 2, 1, 1, Q("0.025 in")))
sketch22.addConstraint(Sketcher.Constraint("DistanceX", 0, 2, -1, 1, Q("0.4375 in")))
sketch22.addConstraint(Sketcher.Constraint("DistanceY", 0, 2, -1, 1, Q("0.0125 in")))
pad22 = body.newObject("PartDesign::Pad", "Pad021")
pad22.Profile = sketch22
pad22.Length = Q("0.0745 in")
pad22.Reversed = True

sketch23 = body.newObject("Sketcher::SketchObject", "Sketch022")
sketch23.AttachmentSupport = (doc.getObject("XY_Plane"), [""])
sketch23.MapMode = "FlatFace"
sketch23.AttachmentOffset = App.Placement(App.Vector(0, 0, -0.0125 * 25.4), App.Rotation())
add_polygon(sketch23, [(-11.1, 3.8), (-11.1, 3.2), (-11.7, 3.2), (-11.7, 3.8)])
sketch23.addConstraint(Sketcher.Constraint("Vertical", 0))
sketch23.addConstraint(Sketcher.Constraint("Horizontal", 1))
sketch23.addConstraint(Sketcher.Constraint("Vertical", 2))
sketch23.addConstraint(Sketcher.Constraint("Horizontal", 3))
sketch23.addConstraint(Sketcher.Constraint("Equal", 3, 0))
sketch23.addConstraint(Sketcher.Constraint("DistanceX", 1, 2, 1, 1, Q("0.025 in")))
sketch23.addConstraint(Sketcher.Constraint("DistanceX", 0, 2, -1, 1, Q("0.4375 in")))
sketch23.addConstraint(Sketcher.Constraint("DistanceY", -1, 1, 0, 2, Q("0.1245 in")))
pad23 = body.newObject("PartDesign::Pad", "Pad022")
pad23.Profile = sketch23
pad23.Length = Q("0.3825 in")
pad23.Reversed = True

sketch24 = body.newObject("Sketcher::SketchObject", "Sketch023")
sketch24.AttachmentSupport = (doc.getObject("XZ_Plane"), [""])
sketch24.MapMode = "FlatFace"
sketch24.AttachmentOffset = App.Placement(App.Vector(0, 0, -0.075 * 25.4), App.Rotation())
add_polygon(sketch24, [(-13.7, 0.3), (-13.7, -0.3), (-14.3, -0.3), (-14.3, 0.3)])
sketch24.addConstraint(Sketcher.Constraint("Vertical", 0))
sketch24.addConstraint(Sketcher.Constraint("Horizontal", 1))
sketch24.addConstraint(Sketcher.Constraint("Vertical", 2))
sketch24.addConstraint(Sketcher.Constraint("Horizontal", 3))
sketch24.addConstraint(Sketcher.Constraint("Equal", 3, 0))
sketch24.addConstraint(Sketcher.Constraint("DistanceX", 1, 2, 1, 1, Q("0.025 in")))
sketch24.addConstraint(Sketcher.Constraint("DistanceX", 1, 2, -1, 1, Q("0.5625 in")))
sketch24.addConstraint(Sketcher.Constraint("DistanceY", 0, 2, -1, 1, Q("0.0125 in")))
pad24 = body.newObject("PartDesign::Pad", "Pad023")
pad24.Profile = sketch24
pad24.Length = Q("0.0745 in")
pad24.Reversed = True

sketch25 = body.newObject("Sketcher::SketchObject", "Sketch024")
sketch25.AttachmentSupport = (doc.getObject("XY_Plane"), [""])
sketch25.MapMode = "FlatFace"
sketch25.AttachmentOffset = App.Placement(App.Vector(0, 0, -0.0125 * 25.4), App.Rotation())
add_polygon(sketch25, [(-13.7, 3.8), (-13.7, 3.2), (-14.3, 3.2), (-14.3, 3.8)])
sketch25.addConstraint(Sketcher.Constraint("Vertical", 0))
sketch25.addConstraint(Sketcher.Constraint("Horizontal", 1))
sketch25.addConstraint(Sketcher.Constraint("Vertical", 2))
sketch25.addConstraint(Sketcher.Constraint("Horizontal", 3))
sketch25.addConstraint(Sketcher.Constraint("Equal", 3, 0))
sketch25.addConstraint(Sketcher.Constraint("DistanceX", 1, 2, 1, 1, Q("0.025 in")))
sketch25.addConstraint(Sketcher.Constraint("DistanceX", 1, 2, -1, 1, Q("0.5625 in")))
sketch25.addConstraint(Sketcher.Constraint("DistanceY", -1, 1, 0, 2, Q("0.1245 in")))
pad25 = body.newObject("PartDesign::Pad", "Pad024")
pad25.Profile = sketch25
pad25.Length = Q("0.3825 in")
pad25.Reversed = True

sketch26 = body.newObject("Sketcher::SketchObject", "Sketch025")
sketch26.AttachmentSupport = (doc.getObject("XZ_Plane"), [""])
sketch26.MapMode = "FlatFace"
add_polygon(sketch26, [(13.7, 0.3), (13.7, -0.3), (14.3, -0.3), (14.3, 0.3)])
sketch26.addConstraint(Sketcher.Constraint("Vertical", 0))
sketch26.addConstraint(Sketcher.Constraint("Horizontal", 1))
sketch26.addConstraint(Sketcher.Constraint("Vertical", 2))
sketch26.addConstraint(Sketcher.Constraint("Horizontal", 3))
sketch26.addConstraint(Sketcher.Constraint("Equal", 3, 0))
sketch26.addConstraint(Sketcher.Constraint("DistanceX", 1, 1, 1, 2, Q("0.025 in")))
sketch26.addConstraint(Sketcher.Constraint("DistanceX", -1, 1, 1, 2, Q("0.5625 in")))
sketch26.addConstraint(Sketcher.Constraint("DistanceY", 0, 2, -1, 1, Q("0.0125 in")))
pad26 = body.newObject("PartDesign::Pad", "Pad025")
pad26.Profile = sketch26
pad26.Length = Q("0.165 in")

sketch27 = body.newObject("Sketcher::SketchObject", "Sketch026")
sketch27.AttachmentSupport = (doc.getObject("XZ_Plane"), [""])
sketch27.MapMode = "FlatFace"
add_polygon(sketch27, [(11.1, 0.3), (11.1, -0.3), (11.7, -0.3), (11.7, 0.3)])
sketch27.addConstraint(Sketcher.Constraint("Vertical", 0))
sketch27.addConstraint(Sketcher.Constraint("Horizontal", 1))
sketch27.addConstraint(Sketcher.Constraint("Vertical", 2))
sketch27.addConstraint(Sketcher.Constraint("Horizontal", 3))
sketch27.addConstraint(Sketcher.Constraint("Equal", 3, 0))
sketch27.addConstraint(Sketcher.Constraint("DistanceX", 1, 1, 1, 2, Q("0.025 in")))
sketch27.addConstraint(Sketcher.Constraint("DistanceX", -1, 1, 0, 2, Q("0.4375 in")))
sketch27.addConstraint(Sketcher.Constraint("DistanceY", 0, 2, -1, 1, Q("0.0125 in")))
pad27 = body.newObject("PartDesign::Pad", "Pad026")
pad27.Profile = sketch27
pad27.Length = Q("0.165 in")

sketch28 = body.newObject("Sketcher::SketchObject", "Sketch027")
sketch28.AttachmentSupport = (doc.getObject("XZ_Plane"), [""])
sketch28.MapMode = "FlatFace"
add_polygon(sketch28, [(8.6, 0.3), (8.6, -0.3), (9.2, -0.3), (9.2, 0.3)])
sketch28.addConstraint(Sketcher.Constraint("Vertical", 0))
sketch28.addConstraint(Sketcher.Constraint("Horizontal", 1))
sketch28.addConstraint(Sketcher.Constraint("Vertical", 2))
sketch28.addConstraint(Sketcher.Constraint("Horizontal", 3))
sketch28.addConstraint(Sketcher.Constraint("Equal", 3, 0))
sketch28.addConstraint(Sketcher.Constraint("DistanceX", 1, 1, 1, 2, Q("0.025 in")))
sketch28.addConstraint(Sketcher.Constraint("DistanceX", -1, 1, 0, 2, Q("0.3375 in")))
sketch28.addConstraint(Sketcher.Constraint("DistanceY", 0, 2, -1, 1, Q("0.0125 in")))
pad28 = body.newObject("PartDesign::Pad", "Pad027")
pad28.Profile = sketch28
pad28.Length = Q("0.165 in")

sketch29 = body.newObject("Sketcher::SketchObject", "Sketch028")
sketch29.AttachmentSupport = (doc.getObject("XZ_Plane"), [""])
sketch29.MapMode = "FlatFace"
add_polygon(sketch29, [(6, 0.3), (6, -0.3), (6.7, -0.3), (6.7, 0.3)])
sketch29.addConstraint(Sketcher.Constraint("Vertical", 0))
sketch29.addConstraint(Sketcher.Constraint("Horizontal", 1))
sketch29.addConstraint(Sketcher.Constraint("Vertical", 2))
sketch29.addConstraint(Sketcher.Constraint("Horizontal", 3))
sketch29.addConstraint(Sketcher.Constraint("Equal", 3, 0))
sketch29.addConstraint(Sketcher.Constraint("DistanceX", 1, 1, 1, 2, Q("0.025 in")))
sketch29.addConstraint(Sketcher.Constraint("DistanceX", -1, 1, 0, 2, Q("0.2375 in")))
sketch29.addConstraint(Sketcher.Constraint("DistanceY", 0, 2, -1, 1, Q("0.0125 in")))
pad29 = body.newObject("PartDesign::Pad", "Pad028")
pad29.Profile = sketch29
pad29.Length = Q("0.165 in")

sketch30 = body.newObject("Sketcher::SketchObject", "Sketch029")
sketch30.AttachmentSupport = (doc.getObject("XZ_Plane"), [""])
sketch30.MapMode = "FlatFace"
add_polygon(sketch30, [(3.5, 0.3), (3.5, -0.3), (4.1, -0.3), (4.1, 0.3)])
sketch30.addConstraint(Sketcher.Constraint("Vertical", 0))
sketch30.addConstraint(Sketcher.Constraint("Horizontal", 1))
sketch30.addConstraint(Sketcher.Constraint("Vertical", 2))
sketch30.addConstraint(Sketcher.Constraint("Horizontal", 3))
sketch30.addConstraint(Sketcher.Constraint("Equal", 3, 0))
sketch30.addConstraint(Sketcher.Constraint("DistanceX", 1, 1, 1, 2, Q("0.025 in")))
sketch30.addConstraint(Sketcher.Constraint("DistanceX", -1, 1, 0, 2, Q("0.1375 in")))
sketch30.addConstraint(Sketcher.Constraint("DistanceY", 0, 2, -1, 1, Q("0.0125 in")))
pad30 = body.newObject("PartDesign::Pad", "Pad029")
pad30.Profile = sketch30
pad30.Length = Q("0.165 in")

sketch31 = body.newObject("Sketcher::SketchObject", "Sketch030")
sketch31.AttachmentSupport = (doc.getObject("XZ_Plane"), [""])
sketch31.MapMode = "FlatFace"
add_polygon(sketch31, [(1, 0.3), (1, -0.3), (1.6, -0.3), (1.6, 0.3)])
sketch31.addConstraint(Sketcher.Constraint("Vertical", 0))
sketch31.addConstraint(Sketcher.Constraint("Horizontal", 1))
sketch31.addConstraint(Sketcher.Constraint("Vertical", 2))
sketch31.addConstraint(Sketcher.Constraint("Horizontal", 3))
sketch31.addConstraint(Sketcher.Constraint("Equal", 3, 0))
sketch31.addConstraint(Sketcher.Constraint("DistanceX", 1, 1, 1, 2, Q("0.025 in")))
sketch31.addConstraint(Sketcher.Constraint("DistanceX", -1, 1, 1, 2, Q("0.0625 in")))
sketch31.addConstraint(Sketcher.Constraint("DistanceY", 0, 2, -1, 1, Q("0.0125 in")))
pad31 = body.newObject("PartDesign::Pad", "Pad030")
pad31.Profile = sketch31
pad31.Length = Q("0.165 in")

sketch32 = body.newObject("Sketcher::SketchObject", "Sketch031")
sketch32.AttachmentSupport = (doc.getObject("XZ_Plane"), [""])
sketch32.MapMode = "FlatFace"
add_polygon(sketch32, [(-1.6, 0.3), (-1.6, -0.3), (-1, -0.3), (-1, 0.3)])
sketch32.addConstraint(Sketcher.Constraint("Vertical", 0))
sketch32.addConstraint(Sketcher.Constraint("Horizontal", 1))
sketch32.addConstraint(Sketcher.Constraint("Vertical", 2))
sketch32.addConstraint(Sketcher.Constraint("Horizontal", 3))
sketch32.addConstraint(Sketcher.Constraint("Equal", 3, 0))
sketch32.addConstraint(Sketcher.Constraint("DistanceX", 1, 1, 1, 2, Q("0.025 in")))
sketch32.addConstraint(Sketcher.Constraint("DistanceX", 0, 2, -1, 1, Q("0.0625 in")))
sketch32.addConstraint(Sketcher.Constraint("DistanceY", 0, 2, -1, 1, Q("0.0125 in")))
pad32 = body.newObject("PartDesign::Pad", "Pad031")
pad32.Profile = sketch32
pad32.Length = Q("0.165 in")

sketch33 = body.newObject("Sketcher::SketchObject", "Sketch032")
sketch33.AttachmentSupport = (doc.getObject("XZ_Plane"), [""])
sketch33.MapMode = "FlatFace"
add_polygon(sketch33, [(-4.1, 0.3), (-4.1, -0.3), (-3.5, -0.3), (-3.5, 0.3)])
sketch33.addConstraint(Sketcher.Constraint("Vertical", 0))
sketch33.addConstraint(Sketcher.Constraint("Horizontal", 1))
sketch33.addConstraint(Sketcher.Constraint("Vertical", 2))
sketch33.addConstraint(Sketcher.Constraint("Horizontal", 3))
sketch33.addConstraint(Sketcher.Constraint("Equal", 3, 0))
sketch33.addConstraint(Sketcher.Constraint("DistanceX", 1, 1, 1, 2, Q("0.025 in")))
sketch33.addConstraint(Sketcher.Constraint("DistanceX", 0, 2, -1, 1, Q("0.1625 in")))
sketch33.addConstraint(Sketcher.Constraint("DistanceY", 0, 2, -1, 1, Q("0.0125 in")))
pad33 = body.newObject("PartDesign::Pad", "Pad032")
pad33.Profile = sketch33
pad33.Length = Q("0.165 in")

sketch34 = body.newObject("Sketcher::SketchObject", "Sketch033")
sketch34.AttachmentSupport = (doc.getObject("XZ_Plane"), [""])
sketch34.MapMode = "FlatFace"
add_polygon(sketch34, [(-6.7, 0.3), (-6.7, -0.3), (-6, -0.3), (-6, 0.3)])
sketch34.addConstraint(Sketcher.Constraint("Vertical", 0))
sketch34.addConstraint(Sketcher.Constraint("Horizontal", 1))
sketch34.addConstraint(Sketcher.Constraint("Vertical", 2))
sketch34.addConstraint(Sketcher.Constraint("Horizontal", 3))
sketch34.addConstraint(Sketcher.Constraint("Equal", 3, 0))
sketch34.addConstraint(Sketcher.Constraint("DistanceX", 1, 1, 1, 2, Q("0.025 in")))
sketch34.addConstraint(Sketcher.Constraint("DistanceX", 0, 2, -1, 1, Q("0.2625 in")))
sketch34.addConstraint(Sketcher.Constraint("DistanceY", 0, 2, -1, 1, Q("0.0125 in")))
pad34 = body.newObject("PartDesign::Pad", "Pad033")
pad34.Profile = sketch34
pad34.Length = Q("0.165 in")

sketch35 = body.newObject("Sketcher::SketchObject", "Sketch034")
sketch35.AttachmentSupport = (doc.getObject("XZ_Plane"), [""])
sketch35.MapMode = "FlatFace"
add_polygon(sketch35, [(-9.2, 0.3), (-9.2, -0.3), (-8.6, -0.3), (-8.6, 0.3)])
sketch35.addConstraint(Sketcher.Constraint("Vertical", 0))
sketch35.addConstraint(Sketcher.Constraint("Horizontal", 1))
sketch35.addConstraint(Sketcher.Constraint("Vertical", 2))
sketch35.addConstraint(Sketcher.Constraint("Horizontal", 3))
sketch35.addConstraint(Sketcher.Constraint("Equal", 3, 0))
sketch35.addConstraint(Sketcher.Constraint("DistanceX", 1, 1, 1, 2, Q("0.025 in")))
sketch35.addConstraint(Sketcher.Constraint("DistanceX", 0, 2, -1, 1, Q("0.3625 in")))
sketch35.addConstraint(Sketcher.Constraint("DistanceY", 0, 2, -1, 1, Q("0.0125 in")))
pad35 = body.newObject("PartDesign::Pad", "Pad034")
pad35.Profile = sketch35
pad35.Length = Q("0.165 in")

sketch36 = body.newObject("Sketcher::SketchObject", "Sketch035")
sketch36.AttachmentSupport = (doc.getObject("XZ_Plane"), [""])
sketch36.MapMode = "FlatFace"
add_polygon(sketch36, [(-11.7, 0.3), (-11.7, -0.3), (-11.1, -0.3), (-11.1, 0.3)])
sketch36.addConstraint(Sketcher.Constraint("Vertical", 0))
sketch36.addConstraint(Sketcher.Constraint("Horizontal", 1))
sketch36.addConstraint(Sketcher.Constraint("Vertical", 2))
sketch36.addConstraint(Sketcher.Constraint("Horizontal", 3))
sketch36.addConstraint(Sketcher.Constraint("Equal", 3, 0))
sketch36.addConstraint(Sketcher.Constraint("DistanceX", 1, 1, 1, 2, Q("0.025 in")))
sketch36.addConstraint(Sketcher.Constraint("DistanceX", 1, 2, -1, 1, Q("0.4375 in")))
sketch36.addConstraint(Sketcher.Constraint("DistanceY", 0, 2, -1, 1, Q("0.0125 in")))
pad36 = body.newObject("PartDesign::Pad", "Pad035")
pad36.Profile = sketch36
pad36.Length = Q("0.165 in")

sketch37 = body.newObject("Sketcher::SketchObject", "Sketch036")
sketch37.AttachmentSupport = (doc.getObject("XZ_Plane"), [""])
sketch37.MapMode = "FlatFace"
add_polygon(sketch37, [(-14.3, 0.3), (-14.3, -0.3), (-13.7, -0.3), (-13.7, 0.3)])
sketch37.addConstraint(Sketcher.Constraint("Vertical", 0))
sketch37.addConstraint(Sketcher.Constraint("Horizontal", 1))
sketch37.addConstraint(Sketcher.Constraint("Vertical", 2))
sketch37.addConstraint(Sketcher.Constraint("Horizontal", 3))
sketch37.addConstraint(Sketcher.Constraint("Equal", 3, 0))
sketch37.addConstraint(Sketcher.Constraint("DistanceX", 1, 1, 1, 2, Q("0.025 in")))
sketch37.addConstraint(Sketcher.Constraint("DistanceX", 0, 2, -1, 1, Q("0.5625 in")))
sketch37.addConstraint(Sketcher.Constraint("DistanceY", 0, 2, -1, 1, Q("0.0125 in")))
pad37 = body.newObject("PartDesign::Pad", "Pad036")
pad37.Profile = sketch37
pad37.Length = Q("0.165 in")
doc.recompute()

fillet = body.newObject("PartDesign::Fillet", "Fillet")
fillet.Base = (pad37, edges_at(pad37, [
    (6.35, 3.162, -0.318),
    (3.81, 3.162, -0.318),
    (1.27, 3.162, -0.318),
    (-1.27, 3.162, -0.318),
    (-3.81, 3.162, -0.318),
    (-6.35, 3.162, -0.318),
    (-8.89, 3.162, -0.318),
    (-11.43, 3.162, -0.318),
    (-13.97, 3.162, -0.318),
    (13.97, 3.162, -0.318),
    (11.43, 3.162, -0.318),
    (8.89, 3.162, -0.318),
]))
fillet.Radius = Q("0.03 in")
doc.recompute()

fillet2 = body.newObject("PartDesign::Fillet", "Fillet001")
fillet2.Base = (fillet, edges_at(fillet, [
    (6.35, 3.797, 0.318),
    (3.81, 3.797, 0.318),
    (1.27, 3.797, 0.318),
    (-1.27, 3.797, 0.318),
    (-3.81, 3.797, 0.318),
    (-6.35, 3.797, 0.318),
    (-8.89, 3.797, 0.318),
    (13.97, 3.797, 0.318),
    (-11.43, 3.797, 0.318),
    (-13.97, 3.797, 0.318),
    (11.43, 3.797, 0.318),
    (8.89, 3.797, 0.318),
]))
fillet2.Radius = Q("0.055 in")

doc.recompute()
